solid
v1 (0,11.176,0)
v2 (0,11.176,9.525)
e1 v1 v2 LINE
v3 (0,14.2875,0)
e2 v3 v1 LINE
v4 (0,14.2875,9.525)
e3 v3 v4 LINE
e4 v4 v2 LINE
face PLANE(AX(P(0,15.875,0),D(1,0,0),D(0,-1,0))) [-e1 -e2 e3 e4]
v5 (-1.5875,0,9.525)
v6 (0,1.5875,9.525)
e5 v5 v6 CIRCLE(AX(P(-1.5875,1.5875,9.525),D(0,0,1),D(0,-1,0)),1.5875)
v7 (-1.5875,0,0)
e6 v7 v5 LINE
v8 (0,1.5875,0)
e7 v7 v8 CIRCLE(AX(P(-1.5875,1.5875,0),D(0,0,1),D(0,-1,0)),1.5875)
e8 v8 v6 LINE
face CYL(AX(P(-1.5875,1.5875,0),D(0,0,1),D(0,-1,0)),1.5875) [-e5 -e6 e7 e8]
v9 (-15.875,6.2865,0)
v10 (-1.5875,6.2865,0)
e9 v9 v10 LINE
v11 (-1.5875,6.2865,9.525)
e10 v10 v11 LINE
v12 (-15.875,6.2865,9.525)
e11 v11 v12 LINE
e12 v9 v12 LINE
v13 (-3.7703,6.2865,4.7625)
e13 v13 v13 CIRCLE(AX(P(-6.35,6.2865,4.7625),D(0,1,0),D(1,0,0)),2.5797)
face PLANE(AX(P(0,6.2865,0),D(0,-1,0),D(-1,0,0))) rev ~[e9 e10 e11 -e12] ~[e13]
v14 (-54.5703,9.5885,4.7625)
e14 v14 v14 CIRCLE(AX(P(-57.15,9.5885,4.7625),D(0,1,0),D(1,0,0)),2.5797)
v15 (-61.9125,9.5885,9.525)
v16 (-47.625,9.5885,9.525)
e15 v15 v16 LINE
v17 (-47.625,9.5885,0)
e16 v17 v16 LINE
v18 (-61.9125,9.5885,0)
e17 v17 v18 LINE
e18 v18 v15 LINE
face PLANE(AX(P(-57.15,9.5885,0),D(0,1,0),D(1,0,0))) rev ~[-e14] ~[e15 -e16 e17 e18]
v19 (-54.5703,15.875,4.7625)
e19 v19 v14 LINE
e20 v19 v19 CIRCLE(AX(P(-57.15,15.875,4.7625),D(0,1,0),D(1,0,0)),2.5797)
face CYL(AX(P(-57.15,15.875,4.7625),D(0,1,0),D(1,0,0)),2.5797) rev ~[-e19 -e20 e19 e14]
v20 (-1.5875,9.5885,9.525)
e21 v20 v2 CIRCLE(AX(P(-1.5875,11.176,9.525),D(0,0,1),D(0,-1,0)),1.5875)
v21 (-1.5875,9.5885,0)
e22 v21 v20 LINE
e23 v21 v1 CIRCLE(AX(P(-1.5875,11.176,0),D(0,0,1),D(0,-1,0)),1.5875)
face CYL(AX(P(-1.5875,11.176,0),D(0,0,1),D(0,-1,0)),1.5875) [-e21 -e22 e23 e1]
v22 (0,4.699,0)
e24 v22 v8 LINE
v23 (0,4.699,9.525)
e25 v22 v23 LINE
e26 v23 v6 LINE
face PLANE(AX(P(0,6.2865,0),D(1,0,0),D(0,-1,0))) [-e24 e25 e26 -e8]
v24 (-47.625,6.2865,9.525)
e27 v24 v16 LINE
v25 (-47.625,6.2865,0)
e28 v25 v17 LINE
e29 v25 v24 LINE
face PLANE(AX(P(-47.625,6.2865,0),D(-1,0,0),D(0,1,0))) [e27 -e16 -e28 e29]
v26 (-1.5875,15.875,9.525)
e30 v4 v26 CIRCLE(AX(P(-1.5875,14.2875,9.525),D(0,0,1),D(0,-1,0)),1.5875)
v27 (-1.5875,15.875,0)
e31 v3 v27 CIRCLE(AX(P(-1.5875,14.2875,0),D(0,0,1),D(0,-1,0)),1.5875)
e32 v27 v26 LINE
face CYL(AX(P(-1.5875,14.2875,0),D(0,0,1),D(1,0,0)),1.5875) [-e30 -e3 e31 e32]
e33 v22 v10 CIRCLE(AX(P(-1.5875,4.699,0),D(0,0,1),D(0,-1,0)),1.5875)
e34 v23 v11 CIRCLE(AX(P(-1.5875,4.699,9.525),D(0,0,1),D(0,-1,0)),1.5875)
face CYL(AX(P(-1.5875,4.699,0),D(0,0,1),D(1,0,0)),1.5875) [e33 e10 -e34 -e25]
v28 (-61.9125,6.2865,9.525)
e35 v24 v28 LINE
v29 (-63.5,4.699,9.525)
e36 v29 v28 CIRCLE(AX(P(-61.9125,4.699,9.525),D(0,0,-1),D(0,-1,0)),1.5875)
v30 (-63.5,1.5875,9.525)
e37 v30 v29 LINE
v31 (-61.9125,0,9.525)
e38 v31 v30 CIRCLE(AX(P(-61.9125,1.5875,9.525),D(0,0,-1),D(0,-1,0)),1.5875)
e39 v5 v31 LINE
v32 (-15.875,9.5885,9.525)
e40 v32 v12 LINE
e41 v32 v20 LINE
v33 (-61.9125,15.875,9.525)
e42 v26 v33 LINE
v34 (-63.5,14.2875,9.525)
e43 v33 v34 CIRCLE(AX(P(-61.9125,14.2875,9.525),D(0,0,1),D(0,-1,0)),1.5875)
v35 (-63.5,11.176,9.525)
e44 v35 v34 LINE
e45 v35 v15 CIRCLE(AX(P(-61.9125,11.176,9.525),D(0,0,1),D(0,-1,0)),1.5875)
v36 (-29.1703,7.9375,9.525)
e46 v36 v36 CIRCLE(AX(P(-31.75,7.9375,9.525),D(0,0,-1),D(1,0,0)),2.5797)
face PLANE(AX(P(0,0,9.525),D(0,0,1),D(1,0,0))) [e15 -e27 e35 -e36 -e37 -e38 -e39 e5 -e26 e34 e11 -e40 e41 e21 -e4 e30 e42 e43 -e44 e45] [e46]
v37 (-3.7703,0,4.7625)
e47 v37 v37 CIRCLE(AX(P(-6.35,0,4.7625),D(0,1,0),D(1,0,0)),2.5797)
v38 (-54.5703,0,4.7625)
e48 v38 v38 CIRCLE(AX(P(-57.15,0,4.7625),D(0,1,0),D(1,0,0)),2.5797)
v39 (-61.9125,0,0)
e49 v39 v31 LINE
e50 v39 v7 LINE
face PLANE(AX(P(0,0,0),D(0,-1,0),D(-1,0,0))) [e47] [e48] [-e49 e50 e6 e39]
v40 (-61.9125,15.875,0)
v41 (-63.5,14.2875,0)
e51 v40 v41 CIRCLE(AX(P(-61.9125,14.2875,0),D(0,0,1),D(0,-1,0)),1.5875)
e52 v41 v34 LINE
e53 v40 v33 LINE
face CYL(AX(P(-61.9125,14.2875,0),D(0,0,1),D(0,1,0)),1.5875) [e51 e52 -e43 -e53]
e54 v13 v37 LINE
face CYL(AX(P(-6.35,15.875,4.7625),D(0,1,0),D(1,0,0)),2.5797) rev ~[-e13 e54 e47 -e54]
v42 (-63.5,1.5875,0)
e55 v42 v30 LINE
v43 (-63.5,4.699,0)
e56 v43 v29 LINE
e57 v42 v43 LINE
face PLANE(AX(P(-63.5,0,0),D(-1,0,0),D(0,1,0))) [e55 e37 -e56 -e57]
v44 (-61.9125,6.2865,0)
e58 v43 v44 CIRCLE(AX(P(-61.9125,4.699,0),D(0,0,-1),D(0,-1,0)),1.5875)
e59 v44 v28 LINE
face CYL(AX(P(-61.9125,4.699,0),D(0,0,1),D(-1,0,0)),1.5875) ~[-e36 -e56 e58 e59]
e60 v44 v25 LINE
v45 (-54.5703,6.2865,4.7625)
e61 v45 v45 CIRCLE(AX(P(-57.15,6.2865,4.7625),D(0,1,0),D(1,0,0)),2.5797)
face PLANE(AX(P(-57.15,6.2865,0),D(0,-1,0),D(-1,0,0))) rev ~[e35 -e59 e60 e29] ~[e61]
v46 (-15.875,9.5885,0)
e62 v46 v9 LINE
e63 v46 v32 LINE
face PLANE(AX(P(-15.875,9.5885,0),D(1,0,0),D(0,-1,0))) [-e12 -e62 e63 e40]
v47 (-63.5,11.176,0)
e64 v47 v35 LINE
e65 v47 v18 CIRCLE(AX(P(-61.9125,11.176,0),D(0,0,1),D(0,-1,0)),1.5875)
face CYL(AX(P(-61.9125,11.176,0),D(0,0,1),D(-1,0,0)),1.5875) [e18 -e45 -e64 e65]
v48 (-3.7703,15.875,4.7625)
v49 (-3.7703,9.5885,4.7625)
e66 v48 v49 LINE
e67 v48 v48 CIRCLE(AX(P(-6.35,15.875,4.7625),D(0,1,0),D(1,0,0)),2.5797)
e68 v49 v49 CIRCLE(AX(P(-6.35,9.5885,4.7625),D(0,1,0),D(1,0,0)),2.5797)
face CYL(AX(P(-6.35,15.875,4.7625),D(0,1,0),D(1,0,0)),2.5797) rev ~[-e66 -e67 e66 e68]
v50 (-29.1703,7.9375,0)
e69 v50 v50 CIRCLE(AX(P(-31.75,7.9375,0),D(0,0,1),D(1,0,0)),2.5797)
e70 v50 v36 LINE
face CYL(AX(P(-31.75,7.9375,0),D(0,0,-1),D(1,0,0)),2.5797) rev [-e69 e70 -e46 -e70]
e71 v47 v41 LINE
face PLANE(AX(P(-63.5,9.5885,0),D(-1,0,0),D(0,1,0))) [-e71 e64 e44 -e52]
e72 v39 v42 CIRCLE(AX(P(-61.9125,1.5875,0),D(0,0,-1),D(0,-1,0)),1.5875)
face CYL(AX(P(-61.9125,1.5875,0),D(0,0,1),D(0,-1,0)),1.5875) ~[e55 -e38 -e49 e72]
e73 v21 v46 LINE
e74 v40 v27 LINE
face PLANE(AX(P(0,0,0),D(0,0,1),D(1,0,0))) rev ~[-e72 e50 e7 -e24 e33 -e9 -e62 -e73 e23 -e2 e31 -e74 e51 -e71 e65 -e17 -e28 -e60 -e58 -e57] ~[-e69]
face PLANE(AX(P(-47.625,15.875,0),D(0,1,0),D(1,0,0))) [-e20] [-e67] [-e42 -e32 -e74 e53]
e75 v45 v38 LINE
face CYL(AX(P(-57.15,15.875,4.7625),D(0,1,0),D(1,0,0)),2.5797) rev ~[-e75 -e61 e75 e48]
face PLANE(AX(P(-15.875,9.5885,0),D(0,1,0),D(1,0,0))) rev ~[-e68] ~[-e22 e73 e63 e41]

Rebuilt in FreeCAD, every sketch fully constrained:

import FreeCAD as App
import Part
import Sketcher
from FreeCAD import Vector
Q = App.Units.Quantity


def edges_at(feature, points):
    """Names of the edges that pass closest to the given points."""
    edges = feature.Shape.Edges
    near = lambda p: min(range(len(edges)), key=lambda i: edges[i].distToShape(Part.Vertex(*p))[0])
    return sorted({f"Edge{near(p) + 1}" for p in points})

doc = App.newDocument("Part")
body = doc.addObject("PartDesign::Body", "Body")

sketch1 = doc.addObject("Sketcher::SketchObject", "Sketch")
body.addObject(sketch1)
sketch1.AttachmentSupport = (doc.XY_Plane, [""])
sketch1.MapMode = "FlatFace"
sketch1.addGeometry([
    Part.LineSegment(Vector(0, 0, 0), Vector(0, 6.2865, 0)),
    Part.LineSegment(Vector(0, 6.2865, 0), Vector(-15.875, 6.2865, 0)),
    Part.LineSegment(Vector(-15.875, 6.2865, 0), Vector(-15.875, 9.5885, 0)),
    Part.LineSegment(Vector(-15.875, 9.5885, 0), Vector(0, 9.5885, 0)),
    Part.LineSegment(Vector(0, 9.5885, 0), Vector(0, 15.875, 0)),
    Part.LineSegment(Vector(0, 15.875, 0), Vector(-63.5, 15.875, 0)),
    Part.LineSegment(Vector(-63.5, 15.875, 0), Vector(-63.5, 9.5885, 0)),
    Part.LineSegment(Vector(-63.5, 9.5885, 0), Vector(-47.625, 9.5885, 0)),
    Part.LineSegment(Vector(-47.625, 9.5885, 0), Vector(-47.625, 6.2865, 0)),
    Part.LineSegment(Vector(-47.625, 6.2865, 0), Vector(-63.5, 6.2865, 0)),
    Part.LineSegment(Vector(-63.5, 6.2865, 0), Vector(-63.5, 0, 0)),
    Part.LineSegment(Vector(-63.5, 0, 0), Vector(0, 0, 0)),
    Part.Circle(Vector(-31.75, 7.9375, 0), Vector(0, 0, 1), 2.5797),
], False)
sketch1.addConstraint([
    Sketcher.Constraint("Coincident", 0, 2, 1, 1),
    Sketcher.Constraint("Coincident", 1, 2, 2, 1),
    Sketcher.Constraint("Coincident", 2, 2, 3, 1),
    Sketcher.Constraint("Coincident", 3, 2, 4, 1),
    Sketcher.Constraint("Coincident", 4, 2, 5, 1),
    Sketcher.Constraint("Coincident", 5, 2, 6, 1),
    Sketcher.Constraint("Coincident", 6, 2, 7, 1),
    Sketcher.Constraint("Coincident", 7, 2, 8, 1),
    Sketcher.Constraint("Coincident", 8, 2, 9, 1),
    Sketcher.Constraint("Coincident", 9, 2, 10, 1),
    Sketcher.Constraint("Coincident", 10, 2, 11, 1),
    Sketcher.Constraint("Coincident", 11, 2, 0, 1),
    Sketcher.Constraint("Vertical", 0),
    Sketcher.Constraint("Horizontal", 1),
    Sketcher.Constraint("Vertical", 2),
    Sketcher.Constraint("Horizontal", 3),
    Sketcher.Constraint("Vertical", 4),
    Sketcher.Constraint("Horizontal", 5),
    Sketcher.Constraint("Vertical", 6),
    Sketcher.Constraint("Horizontal", 7),
    Sketcher.Constraint("Vertical", 8),
    Sketcher.Constraint("Horizontal", 9),
    Sketcher.Constraint("Vertical", 10),
    Sketcher.Constraint("Horizontal", 11),
    Sketcher.Constraint("Coincident", 11, 2, -1, 1),
    Sketcher.Constraint("PointOnObject", 3, 2, -2),
    Sketcher.Constraint("Horizontal", 3, 2, 6, 2),
    Sketcher.Constraint("Horizontal", 1, 2, 8, 2),
    Sketcher.Constraint("Vertical", 6, 2, 9, 2),
    Sketcher.Constraint("Equal", 3, 7),
    Sketcher.Constraint("Equal", 0, 4),
    Sketcher.Constraint("Diameter", 12, Q("0.203126 in")),
    Sketcher.Constraint("DistanceX", 5, 2, 5, 1, Q("2.5 in")),
    Sketcher.Constraint("DistanceY", 2, 1, 2, 2, Q("0.13 in")),
    Sketcher.Constraint("DistanceX", 1, 2, 1, 1, Q("0.625 in")),
    Sketcher.Constraint("DistanceX", 12, 3, -1, 1, Q("1.25 in")),
    Sketcher.Constraint("DistanceY", 0, 1, 0, 2, Q("0.2475 in")),
    Sketcher.Constraint("DistanceY", -1, 1, 12, 3, Q("0.3125 in")),
])
pad1 = doc.addObject("PartDesign::Pad", "Pad")
body.addObject(pad1)
pad1.Profile = sketch1
pad1.Length = Q("0.375 in")

sketch2 = doc.addObject("Sketcher::SketchObject", "Sketch001")
body.addObject(sketch2)
sketch2.AttachmentSupport = (doc.XZ_Plane, [""])
sketch2.MapMode = "FlatFace"
sketch2.AttachmentOffset = App.Placement(Vector(0, 0, -0.625 * 25.4), App.Rotation())
sketch2.addGeometry([
    Part.Circle(Vector(-6.35, 4.7625, 0), Vector(0, 0, 1), 2.5797),
    Part.Circle(Vector(-57.15, 4.7625, 0), Vector(0, 0, 1), 2.5797),
], False)
sketch2.addConstraint([
    Sketcher.Constraint("Equal", 0, 1),
    Sketcher.Constraint("Horizontal", 0, 3, 1, 3),
    Sketcher.Constraint("Diameter", 0, Q("0.203126 in")),
    Sketcher.Constraint("DistanceX", 0, 3, -1, 1, Q("0.25 in")),
    Sketcher.Constraint("DistanceY", -1, 1, 0, 3, Q("0.1875 in")),
    Sketcher.Constraint("DistanceX", 1, 3, 0, 3, Q("2 in")),
])
pocket1 = doc.addObject("PartDesign::Pocket", "Pocket")
body.addObject(pocket1)
pocket1.Profile = sketch2
pocket1.Type = "ThroughAll"
pocket1.Reversed = True
doc.recompute()

fillet = doc.addObject("PartDesign::Fillet", "Fillet")
body.addObject(fillet)
fillet.Base = (pocket1, edges_at(pocket1, [
    (-63.5, 0, 4.763),
    (-63.5, 6.287, 4.763),
    (-63.5, 9.588, 4.763),
    (-63.5, 15.875, 4.763),
    (0, 15.875, 4.763),
    (0, 9.588, 4.763),
    (0, 6.287, 4.763),
    (0, 0, 4.763),
]))
fillet.Radius = Q("0.0625 in")

doc.recompute()
